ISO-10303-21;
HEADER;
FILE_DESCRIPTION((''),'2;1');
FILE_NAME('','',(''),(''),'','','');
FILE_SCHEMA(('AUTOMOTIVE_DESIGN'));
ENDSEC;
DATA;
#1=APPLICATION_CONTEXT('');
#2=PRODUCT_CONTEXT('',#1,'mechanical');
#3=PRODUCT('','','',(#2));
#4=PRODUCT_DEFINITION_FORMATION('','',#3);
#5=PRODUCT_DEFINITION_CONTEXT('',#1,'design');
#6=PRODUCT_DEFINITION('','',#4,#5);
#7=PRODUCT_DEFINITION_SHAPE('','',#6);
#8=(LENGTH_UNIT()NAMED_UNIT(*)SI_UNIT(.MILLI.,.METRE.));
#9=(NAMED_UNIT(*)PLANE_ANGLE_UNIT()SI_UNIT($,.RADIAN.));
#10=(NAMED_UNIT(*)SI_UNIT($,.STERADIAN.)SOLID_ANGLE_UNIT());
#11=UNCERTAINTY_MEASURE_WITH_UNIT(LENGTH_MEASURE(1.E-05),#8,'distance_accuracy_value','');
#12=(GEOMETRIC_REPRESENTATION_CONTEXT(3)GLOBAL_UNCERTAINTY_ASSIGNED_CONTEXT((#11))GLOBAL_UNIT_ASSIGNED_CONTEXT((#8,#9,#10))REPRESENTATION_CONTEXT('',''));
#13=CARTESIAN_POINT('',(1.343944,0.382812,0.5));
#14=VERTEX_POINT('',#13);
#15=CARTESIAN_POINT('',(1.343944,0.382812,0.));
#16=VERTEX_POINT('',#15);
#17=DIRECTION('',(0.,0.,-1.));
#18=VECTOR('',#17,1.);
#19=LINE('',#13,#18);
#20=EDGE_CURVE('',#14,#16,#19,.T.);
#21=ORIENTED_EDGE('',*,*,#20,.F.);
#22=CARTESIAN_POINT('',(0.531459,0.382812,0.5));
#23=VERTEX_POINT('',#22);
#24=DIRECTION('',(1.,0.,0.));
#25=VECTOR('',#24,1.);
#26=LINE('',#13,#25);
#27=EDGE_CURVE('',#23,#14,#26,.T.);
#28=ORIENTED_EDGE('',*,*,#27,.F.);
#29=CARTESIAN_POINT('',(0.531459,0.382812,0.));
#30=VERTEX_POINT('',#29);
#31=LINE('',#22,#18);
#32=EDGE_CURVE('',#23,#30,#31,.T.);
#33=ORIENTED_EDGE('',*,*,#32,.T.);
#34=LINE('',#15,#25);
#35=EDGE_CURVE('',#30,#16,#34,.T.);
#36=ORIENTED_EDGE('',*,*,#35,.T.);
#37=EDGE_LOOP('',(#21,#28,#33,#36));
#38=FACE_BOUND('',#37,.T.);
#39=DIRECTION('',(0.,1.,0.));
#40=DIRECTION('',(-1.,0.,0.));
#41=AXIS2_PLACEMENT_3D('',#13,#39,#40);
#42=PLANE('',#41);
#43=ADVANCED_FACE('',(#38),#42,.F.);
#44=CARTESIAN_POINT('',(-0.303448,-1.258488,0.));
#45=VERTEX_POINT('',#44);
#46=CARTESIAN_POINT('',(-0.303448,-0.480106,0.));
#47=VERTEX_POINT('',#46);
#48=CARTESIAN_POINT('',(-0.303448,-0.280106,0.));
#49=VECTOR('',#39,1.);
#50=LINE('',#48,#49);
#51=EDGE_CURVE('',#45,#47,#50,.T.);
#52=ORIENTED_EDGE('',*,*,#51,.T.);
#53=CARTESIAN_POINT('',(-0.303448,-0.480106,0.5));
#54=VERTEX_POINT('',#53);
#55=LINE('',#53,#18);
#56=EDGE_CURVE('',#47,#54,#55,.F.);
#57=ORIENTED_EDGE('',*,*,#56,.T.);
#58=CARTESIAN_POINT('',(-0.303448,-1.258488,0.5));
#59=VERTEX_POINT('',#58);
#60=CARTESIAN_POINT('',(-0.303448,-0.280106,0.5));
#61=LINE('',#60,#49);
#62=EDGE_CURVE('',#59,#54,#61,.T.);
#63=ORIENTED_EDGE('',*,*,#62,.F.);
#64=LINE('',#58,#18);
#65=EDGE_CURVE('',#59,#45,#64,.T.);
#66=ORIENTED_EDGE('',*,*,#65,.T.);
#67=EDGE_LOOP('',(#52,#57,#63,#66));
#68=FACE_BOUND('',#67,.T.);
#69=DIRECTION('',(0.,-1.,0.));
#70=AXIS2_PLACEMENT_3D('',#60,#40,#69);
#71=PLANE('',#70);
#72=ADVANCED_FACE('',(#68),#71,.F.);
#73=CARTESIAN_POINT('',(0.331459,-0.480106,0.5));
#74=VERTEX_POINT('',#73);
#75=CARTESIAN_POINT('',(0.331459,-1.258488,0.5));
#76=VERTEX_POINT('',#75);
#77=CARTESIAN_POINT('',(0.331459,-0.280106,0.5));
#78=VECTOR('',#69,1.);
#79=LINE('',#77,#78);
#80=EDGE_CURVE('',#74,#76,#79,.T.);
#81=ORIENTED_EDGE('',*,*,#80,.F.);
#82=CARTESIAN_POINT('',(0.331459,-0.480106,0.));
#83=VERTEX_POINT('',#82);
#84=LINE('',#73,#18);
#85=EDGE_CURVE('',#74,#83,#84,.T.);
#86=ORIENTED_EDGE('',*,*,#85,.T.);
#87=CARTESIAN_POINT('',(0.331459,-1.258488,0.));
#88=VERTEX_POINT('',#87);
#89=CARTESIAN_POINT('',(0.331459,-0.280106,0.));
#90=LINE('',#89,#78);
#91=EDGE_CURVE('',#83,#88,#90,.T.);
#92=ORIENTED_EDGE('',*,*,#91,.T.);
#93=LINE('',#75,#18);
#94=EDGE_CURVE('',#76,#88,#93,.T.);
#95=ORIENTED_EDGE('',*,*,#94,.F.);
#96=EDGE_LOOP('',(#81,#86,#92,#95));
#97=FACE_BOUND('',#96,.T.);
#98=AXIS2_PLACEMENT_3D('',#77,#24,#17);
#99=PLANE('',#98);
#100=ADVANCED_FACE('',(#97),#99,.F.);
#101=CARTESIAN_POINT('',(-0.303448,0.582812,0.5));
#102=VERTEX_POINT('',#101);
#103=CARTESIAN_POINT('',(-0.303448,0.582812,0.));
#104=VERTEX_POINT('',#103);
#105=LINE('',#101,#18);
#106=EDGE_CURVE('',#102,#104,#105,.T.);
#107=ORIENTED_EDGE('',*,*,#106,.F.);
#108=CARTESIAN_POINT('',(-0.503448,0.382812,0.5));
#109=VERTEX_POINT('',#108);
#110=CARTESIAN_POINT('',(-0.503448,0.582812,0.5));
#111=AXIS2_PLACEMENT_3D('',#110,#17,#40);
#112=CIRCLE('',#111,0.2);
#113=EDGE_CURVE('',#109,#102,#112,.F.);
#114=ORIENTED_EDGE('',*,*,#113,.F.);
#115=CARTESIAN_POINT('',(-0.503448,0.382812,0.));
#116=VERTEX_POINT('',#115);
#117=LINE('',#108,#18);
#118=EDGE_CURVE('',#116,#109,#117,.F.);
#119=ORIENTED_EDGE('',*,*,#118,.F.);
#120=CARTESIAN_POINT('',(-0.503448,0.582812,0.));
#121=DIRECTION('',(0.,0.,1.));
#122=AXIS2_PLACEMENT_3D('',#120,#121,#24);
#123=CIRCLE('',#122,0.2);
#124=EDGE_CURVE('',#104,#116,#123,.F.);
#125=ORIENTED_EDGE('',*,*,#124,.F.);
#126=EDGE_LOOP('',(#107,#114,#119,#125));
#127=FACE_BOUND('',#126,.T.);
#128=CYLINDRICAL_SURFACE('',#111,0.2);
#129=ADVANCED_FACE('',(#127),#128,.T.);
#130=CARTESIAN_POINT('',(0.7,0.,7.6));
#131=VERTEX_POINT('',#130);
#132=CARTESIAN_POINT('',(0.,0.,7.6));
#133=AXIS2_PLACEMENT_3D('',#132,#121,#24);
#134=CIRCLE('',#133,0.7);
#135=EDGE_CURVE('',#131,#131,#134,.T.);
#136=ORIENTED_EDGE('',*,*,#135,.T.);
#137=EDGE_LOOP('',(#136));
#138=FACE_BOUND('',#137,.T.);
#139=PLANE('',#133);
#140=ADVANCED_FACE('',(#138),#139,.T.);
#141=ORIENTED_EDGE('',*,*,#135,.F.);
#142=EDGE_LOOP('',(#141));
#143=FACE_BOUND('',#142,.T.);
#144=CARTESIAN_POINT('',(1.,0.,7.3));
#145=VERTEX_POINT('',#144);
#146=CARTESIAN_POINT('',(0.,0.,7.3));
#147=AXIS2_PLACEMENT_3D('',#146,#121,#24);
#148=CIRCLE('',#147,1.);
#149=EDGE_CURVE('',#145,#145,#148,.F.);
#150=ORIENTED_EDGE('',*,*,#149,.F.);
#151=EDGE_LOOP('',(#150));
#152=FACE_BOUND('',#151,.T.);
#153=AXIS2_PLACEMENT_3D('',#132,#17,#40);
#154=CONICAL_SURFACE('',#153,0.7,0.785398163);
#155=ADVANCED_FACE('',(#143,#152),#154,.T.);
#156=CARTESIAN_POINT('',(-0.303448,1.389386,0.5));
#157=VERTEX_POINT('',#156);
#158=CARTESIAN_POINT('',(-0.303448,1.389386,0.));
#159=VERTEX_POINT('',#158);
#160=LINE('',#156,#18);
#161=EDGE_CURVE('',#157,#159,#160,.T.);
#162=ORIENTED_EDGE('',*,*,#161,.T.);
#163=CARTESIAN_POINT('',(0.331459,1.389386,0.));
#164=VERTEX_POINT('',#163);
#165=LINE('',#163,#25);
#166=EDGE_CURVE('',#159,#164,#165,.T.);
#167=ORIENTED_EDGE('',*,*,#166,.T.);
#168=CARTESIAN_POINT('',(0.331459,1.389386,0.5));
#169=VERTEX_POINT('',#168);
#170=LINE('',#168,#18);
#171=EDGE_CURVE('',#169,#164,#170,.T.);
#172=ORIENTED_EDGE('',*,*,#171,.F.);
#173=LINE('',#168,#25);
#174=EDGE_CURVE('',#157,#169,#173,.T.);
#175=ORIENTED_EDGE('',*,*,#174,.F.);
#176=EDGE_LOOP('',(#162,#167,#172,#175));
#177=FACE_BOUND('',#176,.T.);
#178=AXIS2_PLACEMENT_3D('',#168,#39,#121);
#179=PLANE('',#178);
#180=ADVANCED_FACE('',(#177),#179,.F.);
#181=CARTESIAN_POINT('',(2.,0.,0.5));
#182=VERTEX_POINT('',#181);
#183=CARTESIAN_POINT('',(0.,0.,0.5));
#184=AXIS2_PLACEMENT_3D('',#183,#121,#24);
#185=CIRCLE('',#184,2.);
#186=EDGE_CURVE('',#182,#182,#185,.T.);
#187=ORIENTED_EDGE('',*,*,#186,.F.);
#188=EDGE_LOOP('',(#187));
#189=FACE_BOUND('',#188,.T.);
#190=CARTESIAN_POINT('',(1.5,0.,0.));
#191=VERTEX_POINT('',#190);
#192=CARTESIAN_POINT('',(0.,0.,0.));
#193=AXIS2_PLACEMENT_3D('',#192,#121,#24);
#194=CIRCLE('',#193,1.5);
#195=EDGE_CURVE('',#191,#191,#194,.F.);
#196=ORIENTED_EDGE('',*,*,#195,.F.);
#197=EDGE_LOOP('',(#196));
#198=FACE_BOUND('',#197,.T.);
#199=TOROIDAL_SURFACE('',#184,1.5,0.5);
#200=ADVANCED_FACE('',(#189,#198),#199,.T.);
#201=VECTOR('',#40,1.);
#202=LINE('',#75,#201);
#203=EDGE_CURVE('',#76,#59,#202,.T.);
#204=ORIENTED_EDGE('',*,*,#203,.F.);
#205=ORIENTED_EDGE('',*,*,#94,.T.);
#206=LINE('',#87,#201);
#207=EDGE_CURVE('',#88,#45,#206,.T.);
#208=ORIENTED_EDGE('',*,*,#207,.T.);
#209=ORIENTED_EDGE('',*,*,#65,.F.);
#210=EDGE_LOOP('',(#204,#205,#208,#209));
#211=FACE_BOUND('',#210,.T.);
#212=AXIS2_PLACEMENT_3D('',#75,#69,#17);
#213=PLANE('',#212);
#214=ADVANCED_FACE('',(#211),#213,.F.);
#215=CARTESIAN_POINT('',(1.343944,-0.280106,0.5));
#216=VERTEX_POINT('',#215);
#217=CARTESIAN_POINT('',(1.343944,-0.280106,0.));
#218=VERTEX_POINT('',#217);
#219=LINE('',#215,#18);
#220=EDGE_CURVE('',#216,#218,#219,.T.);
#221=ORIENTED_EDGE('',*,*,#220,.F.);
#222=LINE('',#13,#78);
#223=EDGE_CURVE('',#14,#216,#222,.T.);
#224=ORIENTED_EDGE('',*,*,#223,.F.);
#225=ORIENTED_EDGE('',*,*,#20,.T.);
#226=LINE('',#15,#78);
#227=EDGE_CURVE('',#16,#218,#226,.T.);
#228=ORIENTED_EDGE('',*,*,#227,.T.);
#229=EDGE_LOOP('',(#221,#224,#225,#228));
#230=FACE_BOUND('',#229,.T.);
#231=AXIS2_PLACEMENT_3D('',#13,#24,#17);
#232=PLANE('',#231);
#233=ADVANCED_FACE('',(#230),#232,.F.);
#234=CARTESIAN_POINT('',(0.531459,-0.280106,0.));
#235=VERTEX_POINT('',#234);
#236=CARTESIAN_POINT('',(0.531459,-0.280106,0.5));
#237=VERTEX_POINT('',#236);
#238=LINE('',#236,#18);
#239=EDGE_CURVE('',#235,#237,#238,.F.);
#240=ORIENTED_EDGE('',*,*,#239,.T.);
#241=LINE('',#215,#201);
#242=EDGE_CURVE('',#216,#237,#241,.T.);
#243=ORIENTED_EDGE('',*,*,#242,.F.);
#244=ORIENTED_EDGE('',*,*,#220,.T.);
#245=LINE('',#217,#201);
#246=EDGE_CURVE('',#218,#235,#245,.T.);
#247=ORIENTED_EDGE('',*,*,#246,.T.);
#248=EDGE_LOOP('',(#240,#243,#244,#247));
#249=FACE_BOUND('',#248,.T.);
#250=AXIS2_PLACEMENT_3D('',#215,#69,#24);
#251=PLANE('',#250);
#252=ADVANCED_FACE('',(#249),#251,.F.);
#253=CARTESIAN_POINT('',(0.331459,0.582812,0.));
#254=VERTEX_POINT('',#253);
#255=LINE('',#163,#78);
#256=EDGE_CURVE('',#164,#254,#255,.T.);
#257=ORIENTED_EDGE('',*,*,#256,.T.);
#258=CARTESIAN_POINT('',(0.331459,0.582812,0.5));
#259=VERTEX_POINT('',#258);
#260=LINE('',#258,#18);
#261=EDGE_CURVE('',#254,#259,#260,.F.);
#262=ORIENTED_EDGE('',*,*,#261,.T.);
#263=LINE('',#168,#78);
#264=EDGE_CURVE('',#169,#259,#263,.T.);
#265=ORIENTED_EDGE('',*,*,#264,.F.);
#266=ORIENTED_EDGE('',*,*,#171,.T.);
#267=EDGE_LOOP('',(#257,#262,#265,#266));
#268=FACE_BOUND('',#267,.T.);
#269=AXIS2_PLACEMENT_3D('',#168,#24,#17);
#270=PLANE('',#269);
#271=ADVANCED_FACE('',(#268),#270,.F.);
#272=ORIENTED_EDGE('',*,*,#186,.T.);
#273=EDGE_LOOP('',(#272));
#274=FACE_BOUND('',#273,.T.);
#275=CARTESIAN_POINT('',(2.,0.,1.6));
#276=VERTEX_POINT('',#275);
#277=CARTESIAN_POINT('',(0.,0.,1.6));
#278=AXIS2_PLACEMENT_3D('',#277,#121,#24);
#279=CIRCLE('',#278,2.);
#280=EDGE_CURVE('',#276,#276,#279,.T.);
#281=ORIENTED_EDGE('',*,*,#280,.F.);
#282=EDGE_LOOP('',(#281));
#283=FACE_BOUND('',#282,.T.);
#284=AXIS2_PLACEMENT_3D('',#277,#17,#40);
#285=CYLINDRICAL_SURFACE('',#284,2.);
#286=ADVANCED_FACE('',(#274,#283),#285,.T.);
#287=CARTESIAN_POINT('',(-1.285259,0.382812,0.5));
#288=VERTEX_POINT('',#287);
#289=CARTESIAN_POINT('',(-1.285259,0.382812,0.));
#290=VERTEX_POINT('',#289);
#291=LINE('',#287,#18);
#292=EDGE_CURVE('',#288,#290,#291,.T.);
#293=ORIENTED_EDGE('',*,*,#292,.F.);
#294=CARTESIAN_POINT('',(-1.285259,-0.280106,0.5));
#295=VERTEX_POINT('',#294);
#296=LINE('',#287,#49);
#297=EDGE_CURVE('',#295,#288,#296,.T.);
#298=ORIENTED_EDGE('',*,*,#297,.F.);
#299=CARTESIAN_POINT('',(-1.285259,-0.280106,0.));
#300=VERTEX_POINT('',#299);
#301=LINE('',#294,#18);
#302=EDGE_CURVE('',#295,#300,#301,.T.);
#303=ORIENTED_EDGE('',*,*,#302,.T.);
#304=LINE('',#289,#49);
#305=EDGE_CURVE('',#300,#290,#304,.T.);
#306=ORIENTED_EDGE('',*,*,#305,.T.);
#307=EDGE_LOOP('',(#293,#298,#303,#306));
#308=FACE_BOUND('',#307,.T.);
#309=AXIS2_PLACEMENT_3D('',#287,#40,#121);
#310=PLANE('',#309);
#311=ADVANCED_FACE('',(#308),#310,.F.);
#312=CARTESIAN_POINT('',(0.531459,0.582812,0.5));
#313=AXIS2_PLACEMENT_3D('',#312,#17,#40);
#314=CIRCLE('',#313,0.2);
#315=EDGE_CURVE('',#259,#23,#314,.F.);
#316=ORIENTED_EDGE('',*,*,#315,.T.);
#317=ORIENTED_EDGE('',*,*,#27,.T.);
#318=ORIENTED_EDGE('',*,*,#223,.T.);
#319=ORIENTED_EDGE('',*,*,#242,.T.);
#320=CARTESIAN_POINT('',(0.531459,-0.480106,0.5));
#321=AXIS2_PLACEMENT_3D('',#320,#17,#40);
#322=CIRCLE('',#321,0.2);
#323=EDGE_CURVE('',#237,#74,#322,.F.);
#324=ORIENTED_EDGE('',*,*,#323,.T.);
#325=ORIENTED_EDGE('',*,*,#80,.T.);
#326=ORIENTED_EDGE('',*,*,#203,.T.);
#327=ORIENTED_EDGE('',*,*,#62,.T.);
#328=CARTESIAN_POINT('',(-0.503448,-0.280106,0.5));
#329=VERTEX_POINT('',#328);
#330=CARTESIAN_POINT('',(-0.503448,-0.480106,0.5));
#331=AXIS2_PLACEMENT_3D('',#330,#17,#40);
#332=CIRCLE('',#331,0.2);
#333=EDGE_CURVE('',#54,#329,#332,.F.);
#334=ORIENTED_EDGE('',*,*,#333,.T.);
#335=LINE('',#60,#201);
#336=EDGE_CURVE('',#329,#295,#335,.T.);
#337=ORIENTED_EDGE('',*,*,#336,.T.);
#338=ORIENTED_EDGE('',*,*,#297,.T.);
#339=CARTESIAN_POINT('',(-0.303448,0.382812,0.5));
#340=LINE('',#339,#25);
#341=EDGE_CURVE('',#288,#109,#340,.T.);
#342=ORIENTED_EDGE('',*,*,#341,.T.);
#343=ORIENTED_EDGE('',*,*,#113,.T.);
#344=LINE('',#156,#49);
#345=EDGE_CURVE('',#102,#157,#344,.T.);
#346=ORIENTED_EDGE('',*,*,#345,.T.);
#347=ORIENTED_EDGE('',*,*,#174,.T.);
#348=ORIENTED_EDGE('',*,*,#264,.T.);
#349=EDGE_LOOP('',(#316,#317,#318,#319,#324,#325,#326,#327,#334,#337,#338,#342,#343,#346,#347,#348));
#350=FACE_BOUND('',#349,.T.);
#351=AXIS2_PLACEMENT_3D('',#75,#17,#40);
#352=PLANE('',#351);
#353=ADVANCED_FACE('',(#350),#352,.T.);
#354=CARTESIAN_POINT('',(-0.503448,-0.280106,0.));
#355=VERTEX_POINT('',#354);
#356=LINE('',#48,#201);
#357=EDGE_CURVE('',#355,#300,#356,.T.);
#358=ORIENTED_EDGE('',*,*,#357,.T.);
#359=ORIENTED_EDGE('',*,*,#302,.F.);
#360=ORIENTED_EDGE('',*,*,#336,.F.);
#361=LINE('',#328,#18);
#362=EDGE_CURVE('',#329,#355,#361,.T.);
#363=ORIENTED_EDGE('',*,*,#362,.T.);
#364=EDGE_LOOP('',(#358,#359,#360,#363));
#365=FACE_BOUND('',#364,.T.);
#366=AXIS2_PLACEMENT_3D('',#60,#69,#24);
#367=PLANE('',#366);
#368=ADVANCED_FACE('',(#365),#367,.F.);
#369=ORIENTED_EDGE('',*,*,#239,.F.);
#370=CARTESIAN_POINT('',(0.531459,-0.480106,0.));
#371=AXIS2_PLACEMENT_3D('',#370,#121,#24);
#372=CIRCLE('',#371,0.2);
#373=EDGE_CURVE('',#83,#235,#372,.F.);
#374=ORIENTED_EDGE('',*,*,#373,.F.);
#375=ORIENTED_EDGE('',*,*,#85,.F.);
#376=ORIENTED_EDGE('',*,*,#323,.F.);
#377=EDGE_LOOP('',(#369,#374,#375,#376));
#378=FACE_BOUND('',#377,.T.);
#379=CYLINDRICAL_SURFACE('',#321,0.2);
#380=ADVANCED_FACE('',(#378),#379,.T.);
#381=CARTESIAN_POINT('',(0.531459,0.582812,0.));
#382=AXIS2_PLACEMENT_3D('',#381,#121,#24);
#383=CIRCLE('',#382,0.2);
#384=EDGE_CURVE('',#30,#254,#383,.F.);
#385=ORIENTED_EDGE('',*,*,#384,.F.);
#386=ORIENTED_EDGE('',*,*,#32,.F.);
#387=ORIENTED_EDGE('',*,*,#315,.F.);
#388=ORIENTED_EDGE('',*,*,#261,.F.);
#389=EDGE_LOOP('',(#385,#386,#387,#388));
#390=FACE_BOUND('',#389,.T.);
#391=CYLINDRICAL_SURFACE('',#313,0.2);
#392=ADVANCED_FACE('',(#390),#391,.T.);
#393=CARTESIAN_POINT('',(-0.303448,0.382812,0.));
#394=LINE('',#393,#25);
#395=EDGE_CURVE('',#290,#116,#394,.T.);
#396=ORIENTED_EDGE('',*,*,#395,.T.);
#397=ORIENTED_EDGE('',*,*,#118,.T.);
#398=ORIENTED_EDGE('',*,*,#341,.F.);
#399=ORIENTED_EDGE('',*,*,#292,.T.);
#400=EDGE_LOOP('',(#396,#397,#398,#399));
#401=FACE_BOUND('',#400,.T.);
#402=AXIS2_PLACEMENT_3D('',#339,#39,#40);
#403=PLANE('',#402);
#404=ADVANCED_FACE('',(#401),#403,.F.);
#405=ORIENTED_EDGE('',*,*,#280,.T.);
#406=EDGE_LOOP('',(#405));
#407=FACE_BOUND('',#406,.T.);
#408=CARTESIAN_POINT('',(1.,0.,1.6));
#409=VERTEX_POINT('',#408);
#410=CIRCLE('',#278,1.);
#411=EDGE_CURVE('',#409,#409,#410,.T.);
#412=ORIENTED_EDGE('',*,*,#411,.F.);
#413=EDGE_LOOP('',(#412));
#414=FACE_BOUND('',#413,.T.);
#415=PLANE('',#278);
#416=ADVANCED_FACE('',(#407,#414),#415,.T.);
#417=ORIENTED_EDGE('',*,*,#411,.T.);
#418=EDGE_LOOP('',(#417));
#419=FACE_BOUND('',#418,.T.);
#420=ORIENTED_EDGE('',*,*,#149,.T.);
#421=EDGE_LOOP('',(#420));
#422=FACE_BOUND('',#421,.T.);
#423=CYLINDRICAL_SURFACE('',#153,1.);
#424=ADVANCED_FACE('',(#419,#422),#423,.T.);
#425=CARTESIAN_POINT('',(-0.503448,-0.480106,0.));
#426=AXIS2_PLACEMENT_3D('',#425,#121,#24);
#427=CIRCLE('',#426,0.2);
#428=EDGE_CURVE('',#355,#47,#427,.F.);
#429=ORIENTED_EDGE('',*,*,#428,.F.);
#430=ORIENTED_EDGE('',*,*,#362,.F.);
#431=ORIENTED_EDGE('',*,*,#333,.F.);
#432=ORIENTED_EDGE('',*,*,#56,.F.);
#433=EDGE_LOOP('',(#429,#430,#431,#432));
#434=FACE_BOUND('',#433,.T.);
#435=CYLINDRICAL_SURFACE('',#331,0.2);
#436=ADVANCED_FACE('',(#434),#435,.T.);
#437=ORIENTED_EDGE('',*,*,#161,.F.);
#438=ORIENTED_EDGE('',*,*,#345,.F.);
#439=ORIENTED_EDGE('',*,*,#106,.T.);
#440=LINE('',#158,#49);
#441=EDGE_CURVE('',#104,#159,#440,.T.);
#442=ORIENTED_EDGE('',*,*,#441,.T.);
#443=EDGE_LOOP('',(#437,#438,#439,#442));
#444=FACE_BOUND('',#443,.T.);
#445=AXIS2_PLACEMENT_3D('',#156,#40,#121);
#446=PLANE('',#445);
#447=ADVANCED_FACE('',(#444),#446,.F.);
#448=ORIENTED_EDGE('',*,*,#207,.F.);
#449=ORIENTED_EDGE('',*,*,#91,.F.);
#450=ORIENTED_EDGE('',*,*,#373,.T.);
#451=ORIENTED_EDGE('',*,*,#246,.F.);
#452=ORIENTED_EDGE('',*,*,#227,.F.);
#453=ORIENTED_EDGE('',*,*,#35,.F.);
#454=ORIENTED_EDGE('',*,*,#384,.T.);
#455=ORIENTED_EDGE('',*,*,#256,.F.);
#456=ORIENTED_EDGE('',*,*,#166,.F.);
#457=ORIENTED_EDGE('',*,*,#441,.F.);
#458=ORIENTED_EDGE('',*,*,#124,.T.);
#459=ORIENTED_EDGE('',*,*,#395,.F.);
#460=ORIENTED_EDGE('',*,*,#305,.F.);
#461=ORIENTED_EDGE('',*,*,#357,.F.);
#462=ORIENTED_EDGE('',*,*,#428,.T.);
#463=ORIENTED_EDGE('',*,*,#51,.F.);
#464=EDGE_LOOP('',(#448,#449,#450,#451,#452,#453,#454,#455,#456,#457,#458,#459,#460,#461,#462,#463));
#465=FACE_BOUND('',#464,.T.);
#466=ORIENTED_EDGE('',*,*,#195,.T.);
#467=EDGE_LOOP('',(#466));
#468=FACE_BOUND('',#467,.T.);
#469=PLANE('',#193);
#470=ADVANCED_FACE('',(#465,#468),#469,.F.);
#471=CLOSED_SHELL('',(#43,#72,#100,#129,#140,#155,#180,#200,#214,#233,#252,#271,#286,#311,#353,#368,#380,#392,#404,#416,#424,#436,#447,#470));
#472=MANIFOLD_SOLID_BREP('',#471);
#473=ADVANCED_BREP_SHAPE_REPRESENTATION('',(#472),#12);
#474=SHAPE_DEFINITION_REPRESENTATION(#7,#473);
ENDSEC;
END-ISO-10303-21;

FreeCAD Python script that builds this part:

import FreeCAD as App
import Part
import Sketcher
Q = App.Units.Quantity


def edges_at(feature, points):
    """Names of the edges that pass closest to the given points."""
    edges = feature.Shape.Edges
    near = lambda p: min(range(len(edges)), key=lambda i: edges[i].distToShape(Part.Vertex(*p))[0])
    return sorted({f"Edge{near(p) + 1}" for p in points})


def add_polygon(sketch, points):
    """Adds a closed chain of lines whose ends are joined by coincident constraints."""
    first, n = sketch.GeometryCount, len(points)
    for a, b in zip(points, points[1:] + points[:1]):
        sketch.addGeometry(Part.LineSegment(App.Vector(*a, 0), App.Vector(*b, 0)), False)
    for i in range(n):
        sketch.addConstraint(Sketcher.Constraint("Coincident", first + i, 2, first + (i + 1) % n, 1))

doc = App.newDocument("Part")
body = doc.addObject("PartDesign::Body", "Body")

sketch1 = doc.addObject("Sketcher::SketchObject", "Sketch")
body.addObject(sketch1)
sketch1.AttachmentSupport = (doc.XY_Plane, [""])
sketch1.MapMode = "FlatFace"
sketch1.addGeometry(Part.Circle(App.Vector(0, 0, 0), App.Vector(0, 0, 1), 2), False)
sketch1.addConstraint([
    Sketcher.Constraint("Coincident", 0, 3, -1, 1),
    Sketcher.Constraint("Diameter", 0, Q("4 mm")),
])
pad1 = doc.addObject("PartDesign::Pad", "Pad")
body.addObject(pad1)
pad1.Profile = sketch1
pad1.Length = 1.6

sketch2 = doc.addObject("Sketcher::SketchObject", "Sketch001")
body.addObject(sketch2)
sketch2.AttachmentSupport = (doc.XY_Plane, [""])
sketch2.MapMode = "FlatFace"
sketch2.AttachmentOffset = App.Placement(App.Vector(0, 0, 1.6), App.Rotation())
sketch2.addGeometry(Part.Circle(App.Vector(0, 0, 0), App.Vector(0, 0, 1), 1), False)
sketch2.addConstraint([
    Sketcher.Constraint("Coincident", 0, 3, -1, 1),
    Sketcher.Constraint("Diameter", 0, Q("2 mm")),
])
pad2 = doc.addObject("PartDesign::Pad", "Pad001")
body.addObject(pad2)
pad2.Profile = sketch2
pad2.Length = 6

sketch3 = doc.addObject("Sketcher::SketchObject", "Sketch002")
body.addObject(sketch3)
sketch3.AttachmentSupport = (doc.XY_Plane, [""])
sketch3.MapMode = "FlatFace"
add_polygon(sketch3, [(-0.3, -1.3), (-0.3, -0.3), (-1.3, -0.3), (-1.3, 0.4), (-0.3, 0.4), (-0.3, 1.4), (0.3, 1.4), (0.3, 0.4), (1.3, 0.4), (1.3, -0.3), (0.3, -0.3), (0.3, -1.3)])
sketch3.addConstraint([
    Sketcher.Constraint("Vertical", 0),
    Sketcher.Constraint("Horizontal", 1),
    Sketcher.Constraint("Vertical", 2),
    Sketcher.Constraint("Horizontal", 3),
    Sketcher.Constraint("Vertical", 4),
    Sketcher.Constraint("Horizontal", 5),
    Sketcher.Constraint("Vertical", 6),
    Sketcher.Constraint("Horizontal", 7),
    Sketcher.Constraint("Vertical", 8),
    Sketcher.Constraint("Horizontal", 9),
    Sketcher.Constraint("Vertical", 10),
    Sketcher.Constraint("Horizontal", 11),
    Sketcher.Constraint("Horizontal", 3, 2, 6, 2),
    Sketcher.Constraint("Horizontal", 1, 2, 8, 2),
    Sketcher.Constraint("Vertical", 0, 2, 3, 2),
    Sketcher.Constraint("Vertical", 6, 2, 9, 2),
    Sketcher.Constraint("DistanceX", 1, 2, 1, 1, Q("0.981811 mm")),
    Sketcher.Constraint("DistanceY", 0, 1, 0, 2, Q("0.978381 mm")),
    Sketcher.Constraint("DistanceY", 10, 2, 6, 2, Q("1.641299 mm")),
    Sketcher.Constraint("DistanceX", 5, 1, 5, 2, Q("0.634907 mm")),
    Sketcher.Constraint("DistanceX", 7, 1, 7, 2, Q("1.012486 mm")),
    Sketcher.Constraint("DistanceY", 4, 1, 4, 2, Q("1.006575 mm")),
    Sketcher.Constraint("DistanceX", 0, 2, -1, 1, Q("0.303448 mm")),
    Sketcher.Constraint("DistanceY", -1, 1, 2, 2, Q("0.382812 mm")),
])
pocket1 = doc.addObject("PartDesign::Pocket", "Pocket")
body.addObject(pocket1)
pocket1.Profile = sketch3
pocket1.Length = 0.5
pocket1.Reversed = True
doc.recompute()

fillet = doc.addObject("PartDesign::Fillet", "Fillet")
body.addObject(fillet)
fillet.Base = (pocket1, edges_at(pocket1, [
    (0.331, 0.383, 0.25),
    (-0.303, 0.383, 0.25),
    (-0.303, -0.28, 0.25),
    (0.331, -0.28, 0.25),
]))
fillet.Radius = 0.2
doc.recompute()

chamfer = doc.addObject("PartDesign::Chamfer", "Chamfer")
body.addObject(chamfer)
chamfer.Base = (fillet, edges_at(fillet, [(-1, 0, 7.6)]))
chamfer.Size = 0.3
doc.recompute()

fillet2 = doc.addObject("PartDesign::Fillet", "Fillet001")
body.addObject(fillet2)
fillet2.Base = (chamfer, edges_at(chamfer, [(-2, 0, 0)]))
fillet2.Radius = 0.5

doc.recompute()
